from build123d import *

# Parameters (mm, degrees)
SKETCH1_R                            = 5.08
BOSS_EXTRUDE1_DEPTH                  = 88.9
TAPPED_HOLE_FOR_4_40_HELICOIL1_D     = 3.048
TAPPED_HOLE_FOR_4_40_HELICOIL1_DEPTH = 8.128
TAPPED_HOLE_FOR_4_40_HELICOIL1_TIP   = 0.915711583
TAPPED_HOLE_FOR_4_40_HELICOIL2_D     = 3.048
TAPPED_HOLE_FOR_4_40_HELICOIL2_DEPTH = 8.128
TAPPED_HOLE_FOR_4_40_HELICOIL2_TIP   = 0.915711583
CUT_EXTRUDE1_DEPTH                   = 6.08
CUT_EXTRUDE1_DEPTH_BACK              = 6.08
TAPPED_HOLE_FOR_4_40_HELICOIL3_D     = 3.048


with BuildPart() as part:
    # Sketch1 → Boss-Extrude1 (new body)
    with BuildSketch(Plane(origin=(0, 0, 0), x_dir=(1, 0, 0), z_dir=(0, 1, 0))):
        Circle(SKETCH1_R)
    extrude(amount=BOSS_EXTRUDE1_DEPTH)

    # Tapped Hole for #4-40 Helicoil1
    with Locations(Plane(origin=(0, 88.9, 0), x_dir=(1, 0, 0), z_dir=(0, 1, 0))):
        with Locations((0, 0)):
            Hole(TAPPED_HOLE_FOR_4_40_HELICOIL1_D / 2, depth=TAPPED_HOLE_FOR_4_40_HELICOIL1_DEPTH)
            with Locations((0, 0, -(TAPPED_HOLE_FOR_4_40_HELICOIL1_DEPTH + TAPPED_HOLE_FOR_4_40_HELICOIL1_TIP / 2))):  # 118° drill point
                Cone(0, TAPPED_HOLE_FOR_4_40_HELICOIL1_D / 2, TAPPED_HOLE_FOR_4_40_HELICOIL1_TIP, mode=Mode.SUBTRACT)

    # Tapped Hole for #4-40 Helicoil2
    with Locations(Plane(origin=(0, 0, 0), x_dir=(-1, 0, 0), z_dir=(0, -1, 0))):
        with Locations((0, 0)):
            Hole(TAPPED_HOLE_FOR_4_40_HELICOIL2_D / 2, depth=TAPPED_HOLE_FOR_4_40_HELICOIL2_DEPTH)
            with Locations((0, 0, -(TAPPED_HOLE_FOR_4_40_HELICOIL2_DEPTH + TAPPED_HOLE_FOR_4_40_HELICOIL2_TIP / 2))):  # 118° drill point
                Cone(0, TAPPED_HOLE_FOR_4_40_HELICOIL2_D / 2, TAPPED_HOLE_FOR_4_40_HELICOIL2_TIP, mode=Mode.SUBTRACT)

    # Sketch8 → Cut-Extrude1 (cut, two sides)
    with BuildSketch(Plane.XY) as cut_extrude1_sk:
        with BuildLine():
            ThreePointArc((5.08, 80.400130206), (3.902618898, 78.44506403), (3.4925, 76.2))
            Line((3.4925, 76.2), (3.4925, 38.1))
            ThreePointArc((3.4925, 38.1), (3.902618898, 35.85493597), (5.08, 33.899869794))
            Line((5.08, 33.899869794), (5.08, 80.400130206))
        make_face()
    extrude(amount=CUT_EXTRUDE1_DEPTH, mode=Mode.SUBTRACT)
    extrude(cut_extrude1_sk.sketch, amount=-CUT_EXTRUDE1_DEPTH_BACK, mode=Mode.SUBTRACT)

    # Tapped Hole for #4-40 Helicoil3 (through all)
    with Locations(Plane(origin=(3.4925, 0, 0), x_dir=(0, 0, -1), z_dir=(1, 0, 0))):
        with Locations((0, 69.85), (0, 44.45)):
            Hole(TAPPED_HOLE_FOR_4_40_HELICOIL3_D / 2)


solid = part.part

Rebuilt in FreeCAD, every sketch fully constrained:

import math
import FreeCAD as App
import Part
import Sketcher
Q = App.Units.Quantity

doc = App.newDocument("Part")
params = doc.addObject("Spreadsheet::Sheet", "Params")
for row, (alias, value) in enumerate([
    ("sketch1_diameter", "0.4 in"),
    ("pad1_length", "3.5 in"),
    ("sketch2_diameter", "0.12 in"),
    ("hole_diameter", "0.12 in"),
    ("hole_depth", "0.32 in"),
    ("sketch3_diameter", "0.12 in"),
    ("hole2_diameter", "0.12 in"),
    ("hole2_depth", "0.32 in"),
    ("sketch4_radius", "0.25 in"),
    ("sketch4_height", "1.5 in"),
    ("sketch5_diameter", "0.12 in"),
    ("hole3_diameter", "0.12 in"),
], start=1):
    params.set(f"A{row}", alias)
    params.set(f"B{row}", "=" + value)
    params.setAlias(f"B{row}", alias)

body = doc.addObject("PartDesign::Body", "Body")

# Sketch on XZ plane
sketch1 = body.newObject("Sketcher::SketchObject", "Sketch")
sketch1.AttachmentSupport = (doc.getObject("XZ_Plane"), [""])
sketch1.MapMode = "FlatFace"
sketch1.addGeometry(Part.Circle(App.Vector(0, 0, 0), App.Vector(0, 0, 1), 5.08), False)
sketch1.addConstraint([
    Sketcher.Constraint("Coincident", 0, 3, -1, 1),
    Sketcher.Constraint("Diameter", 0, Q("0.4 in")),
])
sketch1.setExpression("Constraints[1]", "Params.sketch1_diameter")
pad1 = body.newObject("PartDesign::Pad", "Pad")
pad1.Profile = sketch1
pad1.setExpression("Length", "Params.pad1_length")
pad1.Reversed = True

# Sketch on XZ plane
sketch2 = body.newObject("Sketcher::SketchObject", "Sketch001")
sketch2.AttachmentSupport = (doc.getObject("XZ_Plane"), [""])
sketch2.MapMode = "FlatFace"
sketch2.AttachmentOffset = App.Placement(App.Vector(0, 0, -3.5 * 25.4), App.Rotation())
sketch2.addGeometry(Part.Circle(App.Vector(0, 0, 0), App.Vector(0, 0, 1), 1.524), False)
sketch2.addConstraint([
    Sketcher.Constraint("Coincident", 0, 3, -1, 1),
    Sketcher.Constraint("Diameter", 0, Q("0.12 in")),
])
sketch2.setExpression("Constraints[1]", "Params.sketch2_diameter")
doc.recompute()
hole = body.newObject("PartDesign::Hole", "Hole")
hole.Profile = sketch2
hole.ThreadType = "None"
hole.setExpression("Diameter", "Params.hole_diameter")
hole.DepthType = "Dimension"
hole.setExpression("Depth", "Params.hole_depth")
hole.DrillPoint = "Angled"
hole.DrillPointAngle = 118
hole.Reversed = True

# Sketch on XZ plane
sketch3 = body.newObject("Sketcher::SketchObject", "Sketch002")
sketch3.AttachmentSupport = (doc.getObject("XZ_Plane"), [""])
sketch3.MapMode = "FlatFace"
sketch3.addGeometry(Part.Circle(App.Vector(0, 0, 0), App.Vector(0, 0, 1), 1.524), False)
sketch3.addConstraint([
    Sketcher.Constraint("Coincident", 0, 3, -1, 1),
    Sketcher.Constraint("Diameter", 0, Q("0.12 in")),
])
sketch3.setExpression("Constraints[1]", "Params.sketch3_diameter")
doc.recompute()
hole2 = body.newObject("PartDesign::Hole", "Hole001")
hole2.Profile = sketch3
hole2.ThreadType = "None"
hole2.setExpression("Diameter", "Params.hole2_diameter")
hole2.DepthType = "Dimension"
hole2.setExpression("Depth", "Params.hole2_depth")
hole2.DrillPoint = "Angled"
hole2.DrillPointAngle = 118

# Sketch on XY plane
sketch4 = body.newObject("Sketcher::SketchObject", "Sketch003")
sketch4.AttachmentSupport = (doc.getObject("XY_Plane"), [""])
sketch4.MapMode = "FlatFace"
sketch4.addGeometry([
    Part.ArcOfCircle(Part.Circle(App.Vector(9.8425, 76.2, 0), App.Vector(0, 0, 1), 6.35), math.radians(138.590378), math.radians(180)),
    Part.LineSegment(App.Vector(3.4925, 76.2, 0), App.Vector(3.4925, 38.1, 0)),
    Part.ArcOfCircle(Part.Circle(App.Vector(9.8425, 38.1, 0), App.Vector(0, 0, 1), 6.35), math.radians(180), math.radians(221.409622)),
    Part.LineSegment(App.Vector(5.08, 33.89987, 0), App.Vector(5.08, 80.40013, 0)),
], False)
sketch4.addConstraint([
    Sketcher.Constraint("Tangent", 0, 2, 1, 1),
    Sketcher.Constraint("Tangent", 1, 2, 2, 1),
    Sketcher.Constraint("Coincident", 2, 2, 3, 1),
    Sketcher.Constraint("Coincident", 3, 2, 0, 1),
    Sketcher.Constraint("Vertical", 1),
    Sketcher.Constraint("Vertical", 3),
    Sketcher.Constraint("Equal", 0, 2),
    Sketcher.Constraint("Radius", 0, Q("0.25 in")),
    Sketcher.Constraint("DistanceY", 1, 2, 1, 1, Q("1.5 in")),
    Sketcher.Constraint("DistanceY", -1, 1, 0, 3, Q("3 in")),
    Sketcher.Constraint("DistanceX", -1, 1, 2, 2, Q("0.2 in")),
    Sketcher.Constraint("DistanceX", 1, 2, 2, 2, Q("0.0625 in")),
])
sketch4.setExpression("Constraints[7]", "Params.sketch4_radius")
sketch4.setExpression("Constraints[8]", "Params.sketch4_height")
pocket1 = body.newObject("PartDesign::Pocket", "Pocket")
pocket1.Profile = sketch4
pocket1.Type = "ThroughAll"
pocket1.Midplane = True

# Sketch on YZ plane
sketch5 = body.newObject("Sketcher::SketchObject", "Sketch004")
sketch5.AttachmentSupport = (doc.getObject("YZ_Plane"), [""])
sketch5.MapMode = "FlatFace"
sketch5.AttachmentOffset = App.Placement(App.Vector(0, 0, 0.1375 * 25.4), App.Rotation())
sketch5.addGeometry([
    Part.Circle(App.Vector(69.85, 0, 0), App.Vector(0, 0, 1), 1.524),
    Part.Circle(App.Vector(44.45, 0, 0), App.Vector(0, 0, 1), 1.524),
], False)
sketch5.addConstraint([
    Sketcher.Constraint("Equal", 0, 1),
    Sketcher.Constraint("PointOnObject", 0, 3, -1),
    Sketcher.Constraint("PointOnObject", 1, 3, -1),
    Sketcher.Constraint("Diameter", 0, Q("0.12 in")),
    Sketcher.Constraint("DistanceX", 1, 3, 0, 3, Q("1 in")),
    Sketcher.Constraint("DistanceX", -1, 1, 0, 3, Q("2.75 in")),
])
sketch5.setExpression("Constraints[3]", "Params.sketch5_diameter")
doc.recompute()
hole3 = body.newObject("PartDesign::Hole", "Hole002")
hole3.Profile = sketch5
hole3.ThreadType = "None"
hole3.setExpression("Diameter", "Params.hole3_diameter")
hole3.DepthType = "ThroughAll"

doc.recompute()
